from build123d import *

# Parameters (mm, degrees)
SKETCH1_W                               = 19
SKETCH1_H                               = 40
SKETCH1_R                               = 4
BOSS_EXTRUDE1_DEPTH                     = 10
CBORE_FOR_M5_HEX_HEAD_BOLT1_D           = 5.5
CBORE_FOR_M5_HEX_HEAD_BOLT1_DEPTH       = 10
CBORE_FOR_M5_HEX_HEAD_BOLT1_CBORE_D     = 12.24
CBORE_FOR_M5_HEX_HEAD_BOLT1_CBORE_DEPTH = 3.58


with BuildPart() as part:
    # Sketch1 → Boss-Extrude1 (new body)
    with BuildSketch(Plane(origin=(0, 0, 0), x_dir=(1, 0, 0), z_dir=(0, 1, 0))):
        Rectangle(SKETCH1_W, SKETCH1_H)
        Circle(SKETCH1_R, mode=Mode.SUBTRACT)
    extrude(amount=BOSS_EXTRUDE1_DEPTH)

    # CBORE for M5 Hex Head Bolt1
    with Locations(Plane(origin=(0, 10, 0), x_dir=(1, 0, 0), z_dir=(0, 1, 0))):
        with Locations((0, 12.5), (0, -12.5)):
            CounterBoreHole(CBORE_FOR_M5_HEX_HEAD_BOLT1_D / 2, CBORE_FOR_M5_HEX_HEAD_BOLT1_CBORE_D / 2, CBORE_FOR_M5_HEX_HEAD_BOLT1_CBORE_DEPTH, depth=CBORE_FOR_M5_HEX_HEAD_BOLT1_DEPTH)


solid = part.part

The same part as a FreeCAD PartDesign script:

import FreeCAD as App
import Part
import Sketcher


def add_polygon(sketch, points):
    """Adds a closed chain of lines whose ends are joined by coincident constraints."""
    first, n = sketch.GeometryCount, len(points)
    for a, b in zip(points, points[1:] + points[:1]):
        sketch.addGeometry(Part.LineSegment(App.Vector(*a, 0), App.Vector(*b, 0)), False)
    for i in range(n):
        sketch.addConstraint(Sketcher.Constraint("Coincident", first + i, 2, first + (i + 1) % n, 1))

doc = App.newDocument("Part")
body = doc.addObject("PartDesign::Body", "Body")

# Sketch on XZ plane
sketch1 = body.newObject("Sketcher::SketchObject", "Sketch")
sketch1.AttachmentSupport = (doc.getObject("XZ_Plane"), [""])
sketch1.MapMode = "FlatFace"
add_polygon(sketch1, [(-9.5, -20), (-9.5, 20), (9.5, 20), (9.5, -20)])  # lines 0-3
sketch1.addGeometry(Part.Circle(App.Vector(0, 0, 0), App.Vector(0, 0, 1), 4), False)  # 4
sketch1.addConstraint([
    Sketcher.Constraint("Vertical", 0),
    Sketcher.Constraint("Horizontal", 1),
    Sketcher.Constraint("Vertical", 2),
    Sketcher.Constraint("Horizontal", 3),
    Sketcher.Constraint("Coincident", 4, 3, -1, 1),
    Sketcher.Constraint("Symmetric", 0, 2, 2, 2, -1, 1),
    Sketcher.Constraint("Diameter", 4, 8.0),
    Sketcher.Constraint("DistanceX", 1, 1, 1, 2, 19.0),
    Sketcher.Constraint("DistanceY", 0, 1, 0, 2, 40.0),
])
pad1 = body.newObject("PartDesign::Pad", "Pad")
pad1.Profile = sketch1
pad1.Length = 10
pad1.Reversed = True

# Sketch on XZ plane
sketch2 = body.newObject("Sketcher::SketchObject", "Sketch001")
sketch2.AttachmentSupport = (doc.getObject("XZ_Plane"), [""])
sketch2.MapMode = "FlatFace"
sketch2.AttachmentOffset = App.Placement(App.Vector(0, 0, -10), App.Rotation())
sketch2.addGeometry([
    Part.Circle(App.Vector(0, -12.5, 0), App.Vector(0, 0, 1), 2.75),
    Part.Circle(App.Vector(0, 12.5, 0), App.Vector(0, 0, 1), 2.75),
], False)
sketch2.addConstraint([
    Sketcher.Constraint("Equal", 0, 1),
    Sketcher.Constraint("Symmetric", 0, 3, 1, 3, -1, 1),
    Sketcher.Constraint("PointOnObject", 0, 3, -2),
    Sketcher.Constraint("Diameter", 0, 5.5),
    Sketcher.Constraint("DistanceY", 0, 3, 1, 3, 25.0),
])
doc.recompute()
hole = body.newObject("PartDesign::Hole", "Hole")
hole.Profile = sketch2
hole.ThreadType = "None"
hole.Diameter = 5.5
hole.DepthType = "Dimension"
hole.Depth = 10
hole.DrillPoint = "Flat"
hole.HoleCutType = "Counterbore"
hole.HoleCutDiameter = 12.24
hole.HoleCutDepth = 3.58
hole.Reversed = True

doc.recompute()
